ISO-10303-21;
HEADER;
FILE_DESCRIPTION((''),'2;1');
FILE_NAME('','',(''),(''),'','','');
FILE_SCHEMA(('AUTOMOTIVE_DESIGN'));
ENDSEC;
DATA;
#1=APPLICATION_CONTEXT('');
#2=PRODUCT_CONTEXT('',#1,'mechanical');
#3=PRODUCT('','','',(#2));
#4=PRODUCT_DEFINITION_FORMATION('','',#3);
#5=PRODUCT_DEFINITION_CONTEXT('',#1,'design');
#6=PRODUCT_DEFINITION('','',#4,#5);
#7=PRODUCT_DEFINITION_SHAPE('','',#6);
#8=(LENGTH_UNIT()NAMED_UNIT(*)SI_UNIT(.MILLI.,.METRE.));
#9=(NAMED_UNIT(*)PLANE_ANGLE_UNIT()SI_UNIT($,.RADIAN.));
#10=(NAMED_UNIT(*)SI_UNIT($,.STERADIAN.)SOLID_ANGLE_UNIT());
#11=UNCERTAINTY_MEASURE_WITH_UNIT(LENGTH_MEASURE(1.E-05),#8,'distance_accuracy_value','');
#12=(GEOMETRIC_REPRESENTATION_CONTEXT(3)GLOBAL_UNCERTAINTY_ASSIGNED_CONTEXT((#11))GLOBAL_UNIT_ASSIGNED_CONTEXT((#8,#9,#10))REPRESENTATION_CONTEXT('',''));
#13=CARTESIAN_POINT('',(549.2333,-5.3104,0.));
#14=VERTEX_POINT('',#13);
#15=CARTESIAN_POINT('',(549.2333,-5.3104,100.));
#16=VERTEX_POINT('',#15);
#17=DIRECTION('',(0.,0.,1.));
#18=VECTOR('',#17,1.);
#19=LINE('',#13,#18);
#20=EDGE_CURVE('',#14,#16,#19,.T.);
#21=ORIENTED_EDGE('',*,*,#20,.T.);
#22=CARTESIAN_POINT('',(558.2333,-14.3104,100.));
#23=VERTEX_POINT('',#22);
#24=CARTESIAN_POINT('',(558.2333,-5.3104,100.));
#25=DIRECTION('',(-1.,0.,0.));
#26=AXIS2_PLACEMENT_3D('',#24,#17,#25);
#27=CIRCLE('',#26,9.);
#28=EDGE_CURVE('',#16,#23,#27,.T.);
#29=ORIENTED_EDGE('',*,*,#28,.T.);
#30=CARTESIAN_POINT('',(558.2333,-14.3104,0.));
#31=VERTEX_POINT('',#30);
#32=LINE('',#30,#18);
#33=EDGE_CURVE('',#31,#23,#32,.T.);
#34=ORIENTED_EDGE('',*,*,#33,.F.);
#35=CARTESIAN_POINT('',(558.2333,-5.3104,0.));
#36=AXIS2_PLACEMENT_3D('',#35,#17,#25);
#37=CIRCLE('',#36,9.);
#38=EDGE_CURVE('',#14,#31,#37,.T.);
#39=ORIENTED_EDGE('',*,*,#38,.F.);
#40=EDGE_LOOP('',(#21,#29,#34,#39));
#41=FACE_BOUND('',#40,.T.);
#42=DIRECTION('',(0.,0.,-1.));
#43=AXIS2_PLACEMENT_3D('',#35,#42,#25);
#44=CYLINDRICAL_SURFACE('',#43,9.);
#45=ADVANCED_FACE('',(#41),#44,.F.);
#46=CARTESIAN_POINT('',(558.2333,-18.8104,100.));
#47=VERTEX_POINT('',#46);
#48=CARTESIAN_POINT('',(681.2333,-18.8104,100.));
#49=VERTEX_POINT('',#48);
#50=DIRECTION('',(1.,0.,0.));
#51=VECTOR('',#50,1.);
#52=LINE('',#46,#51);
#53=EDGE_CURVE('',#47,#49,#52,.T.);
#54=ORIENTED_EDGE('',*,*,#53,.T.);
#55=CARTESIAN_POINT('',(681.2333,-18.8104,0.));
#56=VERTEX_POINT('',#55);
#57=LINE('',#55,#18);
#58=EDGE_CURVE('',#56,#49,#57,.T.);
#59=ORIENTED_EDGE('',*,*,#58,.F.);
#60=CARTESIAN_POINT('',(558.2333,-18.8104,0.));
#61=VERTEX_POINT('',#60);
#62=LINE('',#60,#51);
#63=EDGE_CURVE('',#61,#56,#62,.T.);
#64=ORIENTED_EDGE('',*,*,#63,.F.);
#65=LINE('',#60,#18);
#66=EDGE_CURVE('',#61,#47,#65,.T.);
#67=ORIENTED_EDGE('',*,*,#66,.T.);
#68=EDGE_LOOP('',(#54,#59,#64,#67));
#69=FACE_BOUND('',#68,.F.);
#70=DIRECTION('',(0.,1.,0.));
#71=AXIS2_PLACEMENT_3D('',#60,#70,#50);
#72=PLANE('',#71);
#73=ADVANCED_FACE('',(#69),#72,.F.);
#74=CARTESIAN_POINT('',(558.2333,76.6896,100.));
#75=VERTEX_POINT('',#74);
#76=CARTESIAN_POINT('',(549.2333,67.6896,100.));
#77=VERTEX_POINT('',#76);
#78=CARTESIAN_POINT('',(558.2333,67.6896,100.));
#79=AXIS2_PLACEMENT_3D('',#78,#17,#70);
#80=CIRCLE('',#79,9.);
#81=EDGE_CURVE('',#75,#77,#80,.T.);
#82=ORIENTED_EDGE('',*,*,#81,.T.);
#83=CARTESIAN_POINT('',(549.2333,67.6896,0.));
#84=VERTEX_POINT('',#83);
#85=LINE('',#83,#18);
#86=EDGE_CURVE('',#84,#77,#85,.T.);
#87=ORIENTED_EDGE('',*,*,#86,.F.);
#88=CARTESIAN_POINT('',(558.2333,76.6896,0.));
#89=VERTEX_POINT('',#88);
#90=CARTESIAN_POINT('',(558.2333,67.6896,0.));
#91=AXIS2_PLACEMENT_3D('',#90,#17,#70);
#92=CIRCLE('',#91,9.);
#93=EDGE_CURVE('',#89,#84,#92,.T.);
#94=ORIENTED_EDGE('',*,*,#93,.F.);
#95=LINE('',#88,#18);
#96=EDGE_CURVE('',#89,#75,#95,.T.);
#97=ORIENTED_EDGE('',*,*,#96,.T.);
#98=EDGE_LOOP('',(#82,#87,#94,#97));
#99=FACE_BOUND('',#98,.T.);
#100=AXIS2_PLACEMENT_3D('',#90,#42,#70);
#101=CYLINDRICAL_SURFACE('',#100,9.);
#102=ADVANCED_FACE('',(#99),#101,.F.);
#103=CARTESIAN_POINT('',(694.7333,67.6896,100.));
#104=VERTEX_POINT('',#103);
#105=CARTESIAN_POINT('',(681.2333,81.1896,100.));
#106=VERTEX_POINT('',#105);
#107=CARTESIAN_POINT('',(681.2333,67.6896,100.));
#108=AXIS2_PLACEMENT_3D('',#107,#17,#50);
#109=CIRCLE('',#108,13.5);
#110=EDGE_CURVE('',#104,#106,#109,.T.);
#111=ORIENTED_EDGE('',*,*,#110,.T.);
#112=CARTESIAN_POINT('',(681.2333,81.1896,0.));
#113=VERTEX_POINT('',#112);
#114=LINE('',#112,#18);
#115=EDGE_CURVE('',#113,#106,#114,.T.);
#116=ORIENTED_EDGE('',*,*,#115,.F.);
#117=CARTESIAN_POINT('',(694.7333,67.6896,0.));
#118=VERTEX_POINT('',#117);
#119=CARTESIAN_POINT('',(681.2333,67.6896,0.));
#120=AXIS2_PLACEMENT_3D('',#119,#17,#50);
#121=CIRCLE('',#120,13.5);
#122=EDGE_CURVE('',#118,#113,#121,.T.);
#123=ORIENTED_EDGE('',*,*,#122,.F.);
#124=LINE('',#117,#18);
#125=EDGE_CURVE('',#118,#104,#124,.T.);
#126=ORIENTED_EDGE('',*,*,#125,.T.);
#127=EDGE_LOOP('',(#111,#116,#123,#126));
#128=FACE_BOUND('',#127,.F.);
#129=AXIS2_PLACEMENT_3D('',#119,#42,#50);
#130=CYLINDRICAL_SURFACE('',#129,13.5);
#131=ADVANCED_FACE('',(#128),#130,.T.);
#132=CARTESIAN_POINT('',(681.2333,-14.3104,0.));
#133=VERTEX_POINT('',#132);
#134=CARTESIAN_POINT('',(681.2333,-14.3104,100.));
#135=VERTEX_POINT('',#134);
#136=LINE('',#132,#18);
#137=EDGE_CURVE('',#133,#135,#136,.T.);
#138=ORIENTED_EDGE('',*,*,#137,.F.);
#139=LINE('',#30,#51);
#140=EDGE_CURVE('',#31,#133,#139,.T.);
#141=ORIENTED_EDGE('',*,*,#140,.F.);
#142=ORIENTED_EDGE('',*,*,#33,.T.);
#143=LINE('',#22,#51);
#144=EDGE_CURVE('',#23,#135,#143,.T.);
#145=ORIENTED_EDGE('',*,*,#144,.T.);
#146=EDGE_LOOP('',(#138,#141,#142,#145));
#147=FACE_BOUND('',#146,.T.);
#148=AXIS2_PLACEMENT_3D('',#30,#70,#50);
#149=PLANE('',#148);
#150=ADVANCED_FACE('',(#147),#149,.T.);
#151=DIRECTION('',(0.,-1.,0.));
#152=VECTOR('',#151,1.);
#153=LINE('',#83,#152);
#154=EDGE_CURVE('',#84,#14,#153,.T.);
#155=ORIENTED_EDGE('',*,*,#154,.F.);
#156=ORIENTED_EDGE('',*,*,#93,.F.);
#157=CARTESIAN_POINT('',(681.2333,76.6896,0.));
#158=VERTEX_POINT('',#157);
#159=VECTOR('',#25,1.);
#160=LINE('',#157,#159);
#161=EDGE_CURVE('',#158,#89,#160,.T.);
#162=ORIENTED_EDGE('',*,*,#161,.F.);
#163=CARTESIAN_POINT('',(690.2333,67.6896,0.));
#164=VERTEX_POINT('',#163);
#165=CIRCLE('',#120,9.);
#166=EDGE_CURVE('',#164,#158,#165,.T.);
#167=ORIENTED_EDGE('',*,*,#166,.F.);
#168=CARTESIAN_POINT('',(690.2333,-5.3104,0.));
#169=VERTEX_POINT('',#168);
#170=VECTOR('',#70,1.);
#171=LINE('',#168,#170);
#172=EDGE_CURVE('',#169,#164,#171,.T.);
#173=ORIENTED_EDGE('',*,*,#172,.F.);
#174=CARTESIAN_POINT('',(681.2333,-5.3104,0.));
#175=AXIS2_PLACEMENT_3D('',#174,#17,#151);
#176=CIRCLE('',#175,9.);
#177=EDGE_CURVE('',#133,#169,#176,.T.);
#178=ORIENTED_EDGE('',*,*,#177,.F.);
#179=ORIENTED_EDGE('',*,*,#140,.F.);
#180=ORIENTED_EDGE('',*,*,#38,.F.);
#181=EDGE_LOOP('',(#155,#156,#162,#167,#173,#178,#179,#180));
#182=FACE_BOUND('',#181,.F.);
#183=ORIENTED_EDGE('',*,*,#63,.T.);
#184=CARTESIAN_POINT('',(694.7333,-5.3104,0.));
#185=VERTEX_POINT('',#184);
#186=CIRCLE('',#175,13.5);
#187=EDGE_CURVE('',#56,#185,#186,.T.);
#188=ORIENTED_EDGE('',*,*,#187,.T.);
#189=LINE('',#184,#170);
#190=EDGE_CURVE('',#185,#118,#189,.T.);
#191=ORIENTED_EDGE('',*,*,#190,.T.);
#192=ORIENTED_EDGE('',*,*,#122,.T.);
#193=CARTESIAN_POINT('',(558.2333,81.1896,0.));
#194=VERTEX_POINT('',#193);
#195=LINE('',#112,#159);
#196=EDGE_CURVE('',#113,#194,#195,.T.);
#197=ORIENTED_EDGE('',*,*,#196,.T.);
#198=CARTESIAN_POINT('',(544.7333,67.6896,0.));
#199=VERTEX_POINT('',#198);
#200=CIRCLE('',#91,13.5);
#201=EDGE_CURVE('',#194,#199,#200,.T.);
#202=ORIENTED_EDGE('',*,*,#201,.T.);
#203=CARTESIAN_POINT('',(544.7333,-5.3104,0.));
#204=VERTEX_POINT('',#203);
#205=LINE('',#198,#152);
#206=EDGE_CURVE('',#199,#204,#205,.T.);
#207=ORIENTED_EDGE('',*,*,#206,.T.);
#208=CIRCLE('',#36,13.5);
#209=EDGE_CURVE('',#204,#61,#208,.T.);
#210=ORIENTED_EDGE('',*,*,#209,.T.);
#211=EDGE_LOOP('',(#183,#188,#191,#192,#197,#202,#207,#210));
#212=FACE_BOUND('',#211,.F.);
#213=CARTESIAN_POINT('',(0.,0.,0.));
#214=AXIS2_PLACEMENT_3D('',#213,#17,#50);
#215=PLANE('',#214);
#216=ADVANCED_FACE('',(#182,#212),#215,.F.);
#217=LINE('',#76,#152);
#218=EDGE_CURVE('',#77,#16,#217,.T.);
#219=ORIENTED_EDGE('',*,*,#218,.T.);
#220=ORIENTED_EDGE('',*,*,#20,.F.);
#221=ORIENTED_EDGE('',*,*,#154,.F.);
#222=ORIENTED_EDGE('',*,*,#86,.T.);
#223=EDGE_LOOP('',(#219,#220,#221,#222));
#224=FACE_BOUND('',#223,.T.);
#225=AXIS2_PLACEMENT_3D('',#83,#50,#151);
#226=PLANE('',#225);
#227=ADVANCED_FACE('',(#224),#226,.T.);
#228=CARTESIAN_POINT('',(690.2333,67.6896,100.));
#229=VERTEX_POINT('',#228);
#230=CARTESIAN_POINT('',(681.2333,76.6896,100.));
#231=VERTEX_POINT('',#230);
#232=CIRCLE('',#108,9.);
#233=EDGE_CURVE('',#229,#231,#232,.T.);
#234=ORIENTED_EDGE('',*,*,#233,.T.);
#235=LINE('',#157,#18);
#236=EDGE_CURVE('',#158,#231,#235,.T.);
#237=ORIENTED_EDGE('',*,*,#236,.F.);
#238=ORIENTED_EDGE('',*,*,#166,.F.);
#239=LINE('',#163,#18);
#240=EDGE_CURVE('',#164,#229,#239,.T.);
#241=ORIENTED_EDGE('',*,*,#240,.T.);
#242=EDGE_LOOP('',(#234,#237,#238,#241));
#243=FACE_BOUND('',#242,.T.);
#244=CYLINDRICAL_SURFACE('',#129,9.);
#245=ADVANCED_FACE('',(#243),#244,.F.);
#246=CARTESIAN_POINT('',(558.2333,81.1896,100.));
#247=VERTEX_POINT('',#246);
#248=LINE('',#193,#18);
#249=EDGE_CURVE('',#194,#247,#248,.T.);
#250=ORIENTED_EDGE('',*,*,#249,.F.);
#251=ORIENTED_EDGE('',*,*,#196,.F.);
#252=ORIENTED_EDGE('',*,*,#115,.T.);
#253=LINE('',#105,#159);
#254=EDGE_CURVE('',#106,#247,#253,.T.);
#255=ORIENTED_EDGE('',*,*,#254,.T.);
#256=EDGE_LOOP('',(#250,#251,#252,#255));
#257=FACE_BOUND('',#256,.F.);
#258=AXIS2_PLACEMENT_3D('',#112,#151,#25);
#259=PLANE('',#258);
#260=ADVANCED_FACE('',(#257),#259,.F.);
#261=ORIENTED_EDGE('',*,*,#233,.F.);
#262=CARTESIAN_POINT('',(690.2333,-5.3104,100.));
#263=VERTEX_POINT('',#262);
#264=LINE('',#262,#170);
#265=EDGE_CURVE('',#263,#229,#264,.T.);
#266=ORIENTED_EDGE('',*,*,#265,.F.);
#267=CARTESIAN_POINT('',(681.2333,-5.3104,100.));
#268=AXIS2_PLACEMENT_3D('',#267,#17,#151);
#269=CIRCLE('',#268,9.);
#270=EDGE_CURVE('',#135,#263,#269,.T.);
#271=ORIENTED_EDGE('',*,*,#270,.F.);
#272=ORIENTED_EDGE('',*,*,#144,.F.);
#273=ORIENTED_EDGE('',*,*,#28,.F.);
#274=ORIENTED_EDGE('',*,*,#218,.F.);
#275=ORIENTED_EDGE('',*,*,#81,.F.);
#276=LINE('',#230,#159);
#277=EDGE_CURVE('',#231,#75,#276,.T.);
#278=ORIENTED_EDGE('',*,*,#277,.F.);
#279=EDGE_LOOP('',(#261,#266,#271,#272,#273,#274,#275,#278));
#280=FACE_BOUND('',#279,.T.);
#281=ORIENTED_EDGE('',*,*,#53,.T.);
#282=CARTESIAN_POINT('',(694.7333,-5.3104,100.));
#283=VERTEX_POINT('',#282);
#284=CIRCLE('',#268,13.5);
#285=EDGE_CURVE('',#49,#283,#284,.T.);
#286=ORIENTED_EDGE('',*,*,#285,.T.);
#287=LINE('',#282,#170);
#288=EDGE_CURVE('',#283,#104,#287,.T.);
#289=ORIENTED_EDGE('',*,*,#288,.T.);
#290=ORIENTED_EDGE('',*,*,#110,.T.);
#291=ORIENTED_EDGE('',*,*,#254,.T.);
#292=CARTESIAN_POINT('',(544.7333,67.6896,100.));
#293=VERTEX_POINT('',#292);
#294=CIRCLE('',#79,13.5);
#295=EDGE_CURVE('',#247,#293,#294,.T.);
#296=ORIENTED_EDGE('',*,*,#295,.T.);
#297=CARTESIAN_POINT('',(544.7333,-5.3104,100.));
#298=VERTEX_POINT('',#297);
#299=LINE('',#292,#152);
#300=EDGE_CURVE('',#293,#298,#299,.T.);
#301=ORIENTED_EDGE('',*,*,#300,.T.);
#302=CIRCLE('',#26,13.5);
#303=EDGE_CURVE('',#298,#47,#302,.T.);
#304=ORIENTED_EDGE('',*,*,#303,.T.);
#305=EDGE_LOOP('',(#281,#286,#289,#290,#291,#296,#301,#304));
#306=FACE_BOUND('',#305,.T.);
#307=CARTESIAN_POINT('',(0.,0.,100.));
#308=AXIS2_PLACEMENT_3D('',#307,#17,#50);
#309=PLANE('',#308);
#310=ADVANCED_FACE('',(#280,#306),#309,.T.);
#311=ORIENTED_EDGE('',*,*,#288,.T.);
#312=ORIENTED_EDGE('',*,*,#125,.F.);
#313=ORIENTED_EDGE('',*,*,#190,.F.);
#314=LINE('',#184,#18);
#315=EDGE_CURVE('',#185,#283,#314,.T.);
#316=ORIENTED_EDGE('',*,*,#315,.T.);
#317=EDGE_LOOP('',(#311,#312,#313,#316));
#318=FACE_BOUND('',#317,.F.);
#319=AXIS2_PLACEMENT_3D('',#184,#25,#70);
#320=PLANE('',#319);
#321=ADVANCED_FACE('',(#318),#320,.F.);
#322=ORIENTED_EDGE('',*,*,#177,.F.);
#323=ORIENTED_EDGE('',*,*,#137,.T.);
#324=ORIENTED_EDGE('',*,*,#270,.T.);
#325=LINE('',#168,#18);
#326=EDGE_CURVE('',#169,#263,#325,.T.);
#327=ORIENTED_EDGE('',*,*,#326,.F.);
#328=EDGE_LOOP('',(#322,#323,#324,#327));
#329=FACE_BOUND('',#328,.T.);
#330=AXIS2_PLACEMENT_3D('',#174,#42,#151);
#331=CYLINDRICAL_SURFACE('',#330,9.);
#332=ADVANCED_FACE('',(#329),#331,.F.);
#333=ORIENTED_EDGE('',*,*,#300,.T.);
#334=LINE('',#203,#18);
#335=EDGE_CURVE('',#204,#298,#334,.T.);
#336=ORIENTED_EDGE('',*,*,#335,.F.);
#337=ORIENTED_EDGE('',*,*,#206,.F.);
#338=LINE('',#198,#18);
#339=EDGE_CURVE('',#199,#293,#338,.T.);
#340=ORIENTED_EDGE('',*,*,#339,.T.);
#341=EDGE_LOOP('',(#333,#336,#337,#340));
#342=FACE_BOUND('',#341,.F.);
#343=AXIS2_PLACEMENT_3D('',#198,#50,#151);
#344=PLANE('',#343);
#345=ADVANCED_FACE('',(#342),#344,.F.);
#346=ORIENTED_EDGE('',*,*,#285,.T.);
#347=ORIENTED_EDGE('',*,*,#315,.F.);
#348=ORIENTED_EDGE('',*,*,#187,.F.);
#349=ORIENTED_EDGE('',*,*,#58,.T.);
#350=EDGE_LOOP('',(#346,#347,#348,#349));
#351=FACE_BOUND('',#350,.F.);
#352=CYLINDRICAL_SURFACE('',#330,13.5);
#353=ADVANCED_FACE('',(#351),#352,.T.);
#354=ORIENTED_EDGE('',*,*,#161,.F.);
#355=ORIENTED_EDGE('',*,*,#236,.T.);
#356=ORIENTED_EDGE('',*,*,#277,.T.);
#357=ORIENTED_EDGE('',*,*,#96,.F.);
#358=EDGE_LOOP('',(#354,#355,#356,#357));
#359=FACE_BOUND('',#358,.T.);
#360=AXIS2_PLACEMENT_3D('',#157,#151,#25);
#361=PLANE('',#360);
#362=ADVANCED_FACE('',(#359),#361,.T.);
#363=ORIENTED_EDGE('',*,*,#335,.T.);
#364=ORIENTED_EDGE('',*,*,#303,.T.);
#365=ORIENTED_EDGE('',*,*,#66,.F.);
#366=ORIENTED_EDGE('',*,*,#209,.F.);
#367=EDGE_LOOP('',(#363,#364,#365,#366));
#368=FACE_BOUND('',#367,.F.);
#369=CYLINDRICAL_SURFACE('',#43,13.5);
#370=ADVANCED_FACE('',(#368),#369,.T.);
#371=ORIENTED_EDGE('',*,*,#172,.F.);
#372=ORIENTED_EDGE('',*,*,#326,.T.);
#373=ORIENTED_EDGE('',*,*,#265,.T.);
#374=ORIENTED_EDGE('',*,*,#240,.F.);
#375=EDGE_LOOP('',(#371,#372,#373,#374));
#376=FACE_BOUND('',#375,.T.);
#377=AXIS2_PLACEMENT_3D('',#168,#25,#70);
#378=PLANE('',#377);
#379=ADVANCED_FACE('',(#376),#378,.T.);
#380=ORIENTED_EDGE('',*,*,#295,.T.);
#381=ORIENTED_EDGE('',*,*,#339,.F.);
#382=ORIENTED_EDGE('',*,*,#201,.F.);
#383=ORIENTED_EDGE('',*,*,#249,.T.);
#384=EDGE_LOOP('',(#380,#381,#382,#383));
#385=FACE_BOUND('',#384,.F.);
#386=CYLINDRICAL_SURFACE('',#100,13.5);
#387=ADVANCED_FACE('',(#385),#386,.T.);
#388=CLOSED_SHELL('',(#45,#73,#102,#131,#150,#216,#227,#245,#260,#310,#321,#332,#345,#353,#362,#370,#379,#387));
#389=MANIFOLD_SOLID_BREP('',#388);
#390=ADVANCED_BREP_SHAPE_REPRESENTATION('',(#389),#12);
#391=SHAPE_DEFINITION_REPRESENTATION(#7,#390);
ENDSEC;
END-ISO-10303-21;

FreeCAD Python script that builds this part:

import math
import FreeCAD as App
import Part
import Sketcher
from FreeCAD import Vector

doc = App.newDocument("Part")
body = doc.addObject("PartDesign::Body", "Body")

# Sketch on XY plane
sketch1 = body.newObject("Sketcher::SketchObject", "Sketch")
sketch1.AttachmentSupport = (doc.getObject("XY_Plane"), [""])
sketch1.MapMode = "FlatFace"
sketch1.addGeometry([
    Part.ArcOfCircle(Part.Circle(Vector(558, -5, 0), Vector(0, 0, 1), 14), math.radians(180), math.radians(270)),  # 0
    Part.LineSegment(Vector(558, -19, 0), Vector(681, -19, 0)),  # 1
    Part.ArcOfCircle(Part.Circle(Vector(681, -5, 0), Vector(0, 0, 1), 14), math.radians(-90), math.radians(0)),  # 2
    Part.LineSegment(Vector(695, -5, 0), Vector(695, 68, 0)),  # 3
    Part.ArcOfCircle(Part.Circle(Vector(681, 68, 0), Vector(0, 0, 1), 14), math.radians(0), math.radians(90)),  # 4
    Part.LineSegment(Vector(681, 81, 0), Vector(558, 81, 0)),  # 5
    Part.ArcOfCircle(Part.Circle(Vector(558, 68, 0), Vector(0, 0, 1), 14), math.radians(90), math.radians(180)),  # 6
    Part.LineSegment(Vector(545, 68, 0), Vector(545, -5, 0)),  # 7
    Part.LineSegment(Vector(681, -14, 0), Vector(558, -14, 0)),  # 8
    Part.ArcOfCircle(Part.Circle(Vector(558, -5, 0), Vector(0, 0, 1), 9), math.radians(180), math.radians(270)),  # 9
    Part.LineSegment(Vector(549, -5, 0), Vector(549, 68, 0)),  # 10
    Part.ArcOfCircle(Part.Circle(Vector(558, 68, 0), Vector(0, 0, 1), 9), math.radians(90), math.radians(180)),  # 11
    Part.LineSegment(Vector(558, 77, 0), Vector(681, 77, 0)),  # 12
    Part.ArcOfCircle(Part.Circle(Vector(681, 68, 0), Vector(0, 0, 1), 9), math.radians(0), math.radians(90)),  # 13
    Part.LineSegment(Vector(690, 68, 0), Vector(690, -5, 0)),  # 14
    Part.ArcOfCircle(Part.Circle(Vector(681, -5, 0), Vector(0, 0, 1), 9), math.radians(-90), math.radians(0)),  # 15
], False)
sketch1.addConstraint([
    Sketcher.Constraint("Tangent", 0, 2, 1, 1),
    Sketcher.Constraint("Tangent", 1, 2, 2, 1),
    Sketcher.Constraint("Tangent", 2, 2, 3, 1),
    Sketcher.Constraint("Tangent", 3, 2, 4, 1),
    Sketcher.Constraint("Tangent", 4, 2, 5, 1),
    Sketcher.Constraint("Tangent", 5, 2, 6, 1),
    Sketcher.Constraint("Tangent", 6, 2, 7, 1),
    Sketcher.Constraint("Tangent", 7, 2, 0, 1),
    Sketcher.Constraint("Tangent", 8, 2, 9, 2),
    Sketcher.Constraint("Tangent", 9, 1, 10, 1),
    Sketcher.Constraint("Tangent", 10, 2, 11, 2),
    Sketcher.Constraint("Tangent", 11, 1, 12, 1),
    Sketcher.Constraint("Tangent", 12, 2, 13, 2),
    Sketcher.Constraint("Tangent", 13, 1, 14, 1),
    Sketcher.Constraint("Tangent", 14, 2, 15, 2),
    Sketcher.Constraint("Tangent", 15, 1, 8, 1),
    Sketcher.Constraint("Horizontal", 1),
    Sketcher.Constraint("Vertical", 3),
    Sketcher.Constraint("Horizontal", 5),
    Sketcher.Constraint("Vertical", 7),
    Sketcher.Constraint("Horizontal", 8),
    Sketcher.Constraint("Vertical", 10),
    Sketcher.Constraint("Horizontal", 12),
    Sketcher.Constraint("Vertical", 14),
    Sketcher.Constraint("Coincident", 9, 3, 0, 3),
    Sketcher.Constraint("Coincident", 11, 3, 6, 3),
    Sketcher.Constraint("Coincident", 13, 3, 4, 3),
    Sketcher.Constraint("Equal", 0, 2),
    Sketcher.Constraint("Equal", 2, 4),
    Sketcher.Constraint("Equal", 4, 6),
    Sketcher.Constraint("Equal", 13, 15),
    Sketcher.Constraint("Radius", 9, 9.0),
    Sketcher.Constraint("Radius", 0, 13.5),
    Sketcher.Constraint("DistanceX", 1, 1, 1, 2, 123.0),
    Sketcher.Constraint("DistanceY", 3, 1, 3, 2, 73.0),
    Sketcher.Constraint("DistanceX", -1, 1, 0, 3, 558.2333),
    Sketcher.Constraint("DistanceY", 0, 3, -1, 1, 5.3104),
])
pad1 = body.newObject("PartDesign::Pad", "Pad")
pad1.Profile = sketch1
pad1.Length = 100

doc.recompute()
